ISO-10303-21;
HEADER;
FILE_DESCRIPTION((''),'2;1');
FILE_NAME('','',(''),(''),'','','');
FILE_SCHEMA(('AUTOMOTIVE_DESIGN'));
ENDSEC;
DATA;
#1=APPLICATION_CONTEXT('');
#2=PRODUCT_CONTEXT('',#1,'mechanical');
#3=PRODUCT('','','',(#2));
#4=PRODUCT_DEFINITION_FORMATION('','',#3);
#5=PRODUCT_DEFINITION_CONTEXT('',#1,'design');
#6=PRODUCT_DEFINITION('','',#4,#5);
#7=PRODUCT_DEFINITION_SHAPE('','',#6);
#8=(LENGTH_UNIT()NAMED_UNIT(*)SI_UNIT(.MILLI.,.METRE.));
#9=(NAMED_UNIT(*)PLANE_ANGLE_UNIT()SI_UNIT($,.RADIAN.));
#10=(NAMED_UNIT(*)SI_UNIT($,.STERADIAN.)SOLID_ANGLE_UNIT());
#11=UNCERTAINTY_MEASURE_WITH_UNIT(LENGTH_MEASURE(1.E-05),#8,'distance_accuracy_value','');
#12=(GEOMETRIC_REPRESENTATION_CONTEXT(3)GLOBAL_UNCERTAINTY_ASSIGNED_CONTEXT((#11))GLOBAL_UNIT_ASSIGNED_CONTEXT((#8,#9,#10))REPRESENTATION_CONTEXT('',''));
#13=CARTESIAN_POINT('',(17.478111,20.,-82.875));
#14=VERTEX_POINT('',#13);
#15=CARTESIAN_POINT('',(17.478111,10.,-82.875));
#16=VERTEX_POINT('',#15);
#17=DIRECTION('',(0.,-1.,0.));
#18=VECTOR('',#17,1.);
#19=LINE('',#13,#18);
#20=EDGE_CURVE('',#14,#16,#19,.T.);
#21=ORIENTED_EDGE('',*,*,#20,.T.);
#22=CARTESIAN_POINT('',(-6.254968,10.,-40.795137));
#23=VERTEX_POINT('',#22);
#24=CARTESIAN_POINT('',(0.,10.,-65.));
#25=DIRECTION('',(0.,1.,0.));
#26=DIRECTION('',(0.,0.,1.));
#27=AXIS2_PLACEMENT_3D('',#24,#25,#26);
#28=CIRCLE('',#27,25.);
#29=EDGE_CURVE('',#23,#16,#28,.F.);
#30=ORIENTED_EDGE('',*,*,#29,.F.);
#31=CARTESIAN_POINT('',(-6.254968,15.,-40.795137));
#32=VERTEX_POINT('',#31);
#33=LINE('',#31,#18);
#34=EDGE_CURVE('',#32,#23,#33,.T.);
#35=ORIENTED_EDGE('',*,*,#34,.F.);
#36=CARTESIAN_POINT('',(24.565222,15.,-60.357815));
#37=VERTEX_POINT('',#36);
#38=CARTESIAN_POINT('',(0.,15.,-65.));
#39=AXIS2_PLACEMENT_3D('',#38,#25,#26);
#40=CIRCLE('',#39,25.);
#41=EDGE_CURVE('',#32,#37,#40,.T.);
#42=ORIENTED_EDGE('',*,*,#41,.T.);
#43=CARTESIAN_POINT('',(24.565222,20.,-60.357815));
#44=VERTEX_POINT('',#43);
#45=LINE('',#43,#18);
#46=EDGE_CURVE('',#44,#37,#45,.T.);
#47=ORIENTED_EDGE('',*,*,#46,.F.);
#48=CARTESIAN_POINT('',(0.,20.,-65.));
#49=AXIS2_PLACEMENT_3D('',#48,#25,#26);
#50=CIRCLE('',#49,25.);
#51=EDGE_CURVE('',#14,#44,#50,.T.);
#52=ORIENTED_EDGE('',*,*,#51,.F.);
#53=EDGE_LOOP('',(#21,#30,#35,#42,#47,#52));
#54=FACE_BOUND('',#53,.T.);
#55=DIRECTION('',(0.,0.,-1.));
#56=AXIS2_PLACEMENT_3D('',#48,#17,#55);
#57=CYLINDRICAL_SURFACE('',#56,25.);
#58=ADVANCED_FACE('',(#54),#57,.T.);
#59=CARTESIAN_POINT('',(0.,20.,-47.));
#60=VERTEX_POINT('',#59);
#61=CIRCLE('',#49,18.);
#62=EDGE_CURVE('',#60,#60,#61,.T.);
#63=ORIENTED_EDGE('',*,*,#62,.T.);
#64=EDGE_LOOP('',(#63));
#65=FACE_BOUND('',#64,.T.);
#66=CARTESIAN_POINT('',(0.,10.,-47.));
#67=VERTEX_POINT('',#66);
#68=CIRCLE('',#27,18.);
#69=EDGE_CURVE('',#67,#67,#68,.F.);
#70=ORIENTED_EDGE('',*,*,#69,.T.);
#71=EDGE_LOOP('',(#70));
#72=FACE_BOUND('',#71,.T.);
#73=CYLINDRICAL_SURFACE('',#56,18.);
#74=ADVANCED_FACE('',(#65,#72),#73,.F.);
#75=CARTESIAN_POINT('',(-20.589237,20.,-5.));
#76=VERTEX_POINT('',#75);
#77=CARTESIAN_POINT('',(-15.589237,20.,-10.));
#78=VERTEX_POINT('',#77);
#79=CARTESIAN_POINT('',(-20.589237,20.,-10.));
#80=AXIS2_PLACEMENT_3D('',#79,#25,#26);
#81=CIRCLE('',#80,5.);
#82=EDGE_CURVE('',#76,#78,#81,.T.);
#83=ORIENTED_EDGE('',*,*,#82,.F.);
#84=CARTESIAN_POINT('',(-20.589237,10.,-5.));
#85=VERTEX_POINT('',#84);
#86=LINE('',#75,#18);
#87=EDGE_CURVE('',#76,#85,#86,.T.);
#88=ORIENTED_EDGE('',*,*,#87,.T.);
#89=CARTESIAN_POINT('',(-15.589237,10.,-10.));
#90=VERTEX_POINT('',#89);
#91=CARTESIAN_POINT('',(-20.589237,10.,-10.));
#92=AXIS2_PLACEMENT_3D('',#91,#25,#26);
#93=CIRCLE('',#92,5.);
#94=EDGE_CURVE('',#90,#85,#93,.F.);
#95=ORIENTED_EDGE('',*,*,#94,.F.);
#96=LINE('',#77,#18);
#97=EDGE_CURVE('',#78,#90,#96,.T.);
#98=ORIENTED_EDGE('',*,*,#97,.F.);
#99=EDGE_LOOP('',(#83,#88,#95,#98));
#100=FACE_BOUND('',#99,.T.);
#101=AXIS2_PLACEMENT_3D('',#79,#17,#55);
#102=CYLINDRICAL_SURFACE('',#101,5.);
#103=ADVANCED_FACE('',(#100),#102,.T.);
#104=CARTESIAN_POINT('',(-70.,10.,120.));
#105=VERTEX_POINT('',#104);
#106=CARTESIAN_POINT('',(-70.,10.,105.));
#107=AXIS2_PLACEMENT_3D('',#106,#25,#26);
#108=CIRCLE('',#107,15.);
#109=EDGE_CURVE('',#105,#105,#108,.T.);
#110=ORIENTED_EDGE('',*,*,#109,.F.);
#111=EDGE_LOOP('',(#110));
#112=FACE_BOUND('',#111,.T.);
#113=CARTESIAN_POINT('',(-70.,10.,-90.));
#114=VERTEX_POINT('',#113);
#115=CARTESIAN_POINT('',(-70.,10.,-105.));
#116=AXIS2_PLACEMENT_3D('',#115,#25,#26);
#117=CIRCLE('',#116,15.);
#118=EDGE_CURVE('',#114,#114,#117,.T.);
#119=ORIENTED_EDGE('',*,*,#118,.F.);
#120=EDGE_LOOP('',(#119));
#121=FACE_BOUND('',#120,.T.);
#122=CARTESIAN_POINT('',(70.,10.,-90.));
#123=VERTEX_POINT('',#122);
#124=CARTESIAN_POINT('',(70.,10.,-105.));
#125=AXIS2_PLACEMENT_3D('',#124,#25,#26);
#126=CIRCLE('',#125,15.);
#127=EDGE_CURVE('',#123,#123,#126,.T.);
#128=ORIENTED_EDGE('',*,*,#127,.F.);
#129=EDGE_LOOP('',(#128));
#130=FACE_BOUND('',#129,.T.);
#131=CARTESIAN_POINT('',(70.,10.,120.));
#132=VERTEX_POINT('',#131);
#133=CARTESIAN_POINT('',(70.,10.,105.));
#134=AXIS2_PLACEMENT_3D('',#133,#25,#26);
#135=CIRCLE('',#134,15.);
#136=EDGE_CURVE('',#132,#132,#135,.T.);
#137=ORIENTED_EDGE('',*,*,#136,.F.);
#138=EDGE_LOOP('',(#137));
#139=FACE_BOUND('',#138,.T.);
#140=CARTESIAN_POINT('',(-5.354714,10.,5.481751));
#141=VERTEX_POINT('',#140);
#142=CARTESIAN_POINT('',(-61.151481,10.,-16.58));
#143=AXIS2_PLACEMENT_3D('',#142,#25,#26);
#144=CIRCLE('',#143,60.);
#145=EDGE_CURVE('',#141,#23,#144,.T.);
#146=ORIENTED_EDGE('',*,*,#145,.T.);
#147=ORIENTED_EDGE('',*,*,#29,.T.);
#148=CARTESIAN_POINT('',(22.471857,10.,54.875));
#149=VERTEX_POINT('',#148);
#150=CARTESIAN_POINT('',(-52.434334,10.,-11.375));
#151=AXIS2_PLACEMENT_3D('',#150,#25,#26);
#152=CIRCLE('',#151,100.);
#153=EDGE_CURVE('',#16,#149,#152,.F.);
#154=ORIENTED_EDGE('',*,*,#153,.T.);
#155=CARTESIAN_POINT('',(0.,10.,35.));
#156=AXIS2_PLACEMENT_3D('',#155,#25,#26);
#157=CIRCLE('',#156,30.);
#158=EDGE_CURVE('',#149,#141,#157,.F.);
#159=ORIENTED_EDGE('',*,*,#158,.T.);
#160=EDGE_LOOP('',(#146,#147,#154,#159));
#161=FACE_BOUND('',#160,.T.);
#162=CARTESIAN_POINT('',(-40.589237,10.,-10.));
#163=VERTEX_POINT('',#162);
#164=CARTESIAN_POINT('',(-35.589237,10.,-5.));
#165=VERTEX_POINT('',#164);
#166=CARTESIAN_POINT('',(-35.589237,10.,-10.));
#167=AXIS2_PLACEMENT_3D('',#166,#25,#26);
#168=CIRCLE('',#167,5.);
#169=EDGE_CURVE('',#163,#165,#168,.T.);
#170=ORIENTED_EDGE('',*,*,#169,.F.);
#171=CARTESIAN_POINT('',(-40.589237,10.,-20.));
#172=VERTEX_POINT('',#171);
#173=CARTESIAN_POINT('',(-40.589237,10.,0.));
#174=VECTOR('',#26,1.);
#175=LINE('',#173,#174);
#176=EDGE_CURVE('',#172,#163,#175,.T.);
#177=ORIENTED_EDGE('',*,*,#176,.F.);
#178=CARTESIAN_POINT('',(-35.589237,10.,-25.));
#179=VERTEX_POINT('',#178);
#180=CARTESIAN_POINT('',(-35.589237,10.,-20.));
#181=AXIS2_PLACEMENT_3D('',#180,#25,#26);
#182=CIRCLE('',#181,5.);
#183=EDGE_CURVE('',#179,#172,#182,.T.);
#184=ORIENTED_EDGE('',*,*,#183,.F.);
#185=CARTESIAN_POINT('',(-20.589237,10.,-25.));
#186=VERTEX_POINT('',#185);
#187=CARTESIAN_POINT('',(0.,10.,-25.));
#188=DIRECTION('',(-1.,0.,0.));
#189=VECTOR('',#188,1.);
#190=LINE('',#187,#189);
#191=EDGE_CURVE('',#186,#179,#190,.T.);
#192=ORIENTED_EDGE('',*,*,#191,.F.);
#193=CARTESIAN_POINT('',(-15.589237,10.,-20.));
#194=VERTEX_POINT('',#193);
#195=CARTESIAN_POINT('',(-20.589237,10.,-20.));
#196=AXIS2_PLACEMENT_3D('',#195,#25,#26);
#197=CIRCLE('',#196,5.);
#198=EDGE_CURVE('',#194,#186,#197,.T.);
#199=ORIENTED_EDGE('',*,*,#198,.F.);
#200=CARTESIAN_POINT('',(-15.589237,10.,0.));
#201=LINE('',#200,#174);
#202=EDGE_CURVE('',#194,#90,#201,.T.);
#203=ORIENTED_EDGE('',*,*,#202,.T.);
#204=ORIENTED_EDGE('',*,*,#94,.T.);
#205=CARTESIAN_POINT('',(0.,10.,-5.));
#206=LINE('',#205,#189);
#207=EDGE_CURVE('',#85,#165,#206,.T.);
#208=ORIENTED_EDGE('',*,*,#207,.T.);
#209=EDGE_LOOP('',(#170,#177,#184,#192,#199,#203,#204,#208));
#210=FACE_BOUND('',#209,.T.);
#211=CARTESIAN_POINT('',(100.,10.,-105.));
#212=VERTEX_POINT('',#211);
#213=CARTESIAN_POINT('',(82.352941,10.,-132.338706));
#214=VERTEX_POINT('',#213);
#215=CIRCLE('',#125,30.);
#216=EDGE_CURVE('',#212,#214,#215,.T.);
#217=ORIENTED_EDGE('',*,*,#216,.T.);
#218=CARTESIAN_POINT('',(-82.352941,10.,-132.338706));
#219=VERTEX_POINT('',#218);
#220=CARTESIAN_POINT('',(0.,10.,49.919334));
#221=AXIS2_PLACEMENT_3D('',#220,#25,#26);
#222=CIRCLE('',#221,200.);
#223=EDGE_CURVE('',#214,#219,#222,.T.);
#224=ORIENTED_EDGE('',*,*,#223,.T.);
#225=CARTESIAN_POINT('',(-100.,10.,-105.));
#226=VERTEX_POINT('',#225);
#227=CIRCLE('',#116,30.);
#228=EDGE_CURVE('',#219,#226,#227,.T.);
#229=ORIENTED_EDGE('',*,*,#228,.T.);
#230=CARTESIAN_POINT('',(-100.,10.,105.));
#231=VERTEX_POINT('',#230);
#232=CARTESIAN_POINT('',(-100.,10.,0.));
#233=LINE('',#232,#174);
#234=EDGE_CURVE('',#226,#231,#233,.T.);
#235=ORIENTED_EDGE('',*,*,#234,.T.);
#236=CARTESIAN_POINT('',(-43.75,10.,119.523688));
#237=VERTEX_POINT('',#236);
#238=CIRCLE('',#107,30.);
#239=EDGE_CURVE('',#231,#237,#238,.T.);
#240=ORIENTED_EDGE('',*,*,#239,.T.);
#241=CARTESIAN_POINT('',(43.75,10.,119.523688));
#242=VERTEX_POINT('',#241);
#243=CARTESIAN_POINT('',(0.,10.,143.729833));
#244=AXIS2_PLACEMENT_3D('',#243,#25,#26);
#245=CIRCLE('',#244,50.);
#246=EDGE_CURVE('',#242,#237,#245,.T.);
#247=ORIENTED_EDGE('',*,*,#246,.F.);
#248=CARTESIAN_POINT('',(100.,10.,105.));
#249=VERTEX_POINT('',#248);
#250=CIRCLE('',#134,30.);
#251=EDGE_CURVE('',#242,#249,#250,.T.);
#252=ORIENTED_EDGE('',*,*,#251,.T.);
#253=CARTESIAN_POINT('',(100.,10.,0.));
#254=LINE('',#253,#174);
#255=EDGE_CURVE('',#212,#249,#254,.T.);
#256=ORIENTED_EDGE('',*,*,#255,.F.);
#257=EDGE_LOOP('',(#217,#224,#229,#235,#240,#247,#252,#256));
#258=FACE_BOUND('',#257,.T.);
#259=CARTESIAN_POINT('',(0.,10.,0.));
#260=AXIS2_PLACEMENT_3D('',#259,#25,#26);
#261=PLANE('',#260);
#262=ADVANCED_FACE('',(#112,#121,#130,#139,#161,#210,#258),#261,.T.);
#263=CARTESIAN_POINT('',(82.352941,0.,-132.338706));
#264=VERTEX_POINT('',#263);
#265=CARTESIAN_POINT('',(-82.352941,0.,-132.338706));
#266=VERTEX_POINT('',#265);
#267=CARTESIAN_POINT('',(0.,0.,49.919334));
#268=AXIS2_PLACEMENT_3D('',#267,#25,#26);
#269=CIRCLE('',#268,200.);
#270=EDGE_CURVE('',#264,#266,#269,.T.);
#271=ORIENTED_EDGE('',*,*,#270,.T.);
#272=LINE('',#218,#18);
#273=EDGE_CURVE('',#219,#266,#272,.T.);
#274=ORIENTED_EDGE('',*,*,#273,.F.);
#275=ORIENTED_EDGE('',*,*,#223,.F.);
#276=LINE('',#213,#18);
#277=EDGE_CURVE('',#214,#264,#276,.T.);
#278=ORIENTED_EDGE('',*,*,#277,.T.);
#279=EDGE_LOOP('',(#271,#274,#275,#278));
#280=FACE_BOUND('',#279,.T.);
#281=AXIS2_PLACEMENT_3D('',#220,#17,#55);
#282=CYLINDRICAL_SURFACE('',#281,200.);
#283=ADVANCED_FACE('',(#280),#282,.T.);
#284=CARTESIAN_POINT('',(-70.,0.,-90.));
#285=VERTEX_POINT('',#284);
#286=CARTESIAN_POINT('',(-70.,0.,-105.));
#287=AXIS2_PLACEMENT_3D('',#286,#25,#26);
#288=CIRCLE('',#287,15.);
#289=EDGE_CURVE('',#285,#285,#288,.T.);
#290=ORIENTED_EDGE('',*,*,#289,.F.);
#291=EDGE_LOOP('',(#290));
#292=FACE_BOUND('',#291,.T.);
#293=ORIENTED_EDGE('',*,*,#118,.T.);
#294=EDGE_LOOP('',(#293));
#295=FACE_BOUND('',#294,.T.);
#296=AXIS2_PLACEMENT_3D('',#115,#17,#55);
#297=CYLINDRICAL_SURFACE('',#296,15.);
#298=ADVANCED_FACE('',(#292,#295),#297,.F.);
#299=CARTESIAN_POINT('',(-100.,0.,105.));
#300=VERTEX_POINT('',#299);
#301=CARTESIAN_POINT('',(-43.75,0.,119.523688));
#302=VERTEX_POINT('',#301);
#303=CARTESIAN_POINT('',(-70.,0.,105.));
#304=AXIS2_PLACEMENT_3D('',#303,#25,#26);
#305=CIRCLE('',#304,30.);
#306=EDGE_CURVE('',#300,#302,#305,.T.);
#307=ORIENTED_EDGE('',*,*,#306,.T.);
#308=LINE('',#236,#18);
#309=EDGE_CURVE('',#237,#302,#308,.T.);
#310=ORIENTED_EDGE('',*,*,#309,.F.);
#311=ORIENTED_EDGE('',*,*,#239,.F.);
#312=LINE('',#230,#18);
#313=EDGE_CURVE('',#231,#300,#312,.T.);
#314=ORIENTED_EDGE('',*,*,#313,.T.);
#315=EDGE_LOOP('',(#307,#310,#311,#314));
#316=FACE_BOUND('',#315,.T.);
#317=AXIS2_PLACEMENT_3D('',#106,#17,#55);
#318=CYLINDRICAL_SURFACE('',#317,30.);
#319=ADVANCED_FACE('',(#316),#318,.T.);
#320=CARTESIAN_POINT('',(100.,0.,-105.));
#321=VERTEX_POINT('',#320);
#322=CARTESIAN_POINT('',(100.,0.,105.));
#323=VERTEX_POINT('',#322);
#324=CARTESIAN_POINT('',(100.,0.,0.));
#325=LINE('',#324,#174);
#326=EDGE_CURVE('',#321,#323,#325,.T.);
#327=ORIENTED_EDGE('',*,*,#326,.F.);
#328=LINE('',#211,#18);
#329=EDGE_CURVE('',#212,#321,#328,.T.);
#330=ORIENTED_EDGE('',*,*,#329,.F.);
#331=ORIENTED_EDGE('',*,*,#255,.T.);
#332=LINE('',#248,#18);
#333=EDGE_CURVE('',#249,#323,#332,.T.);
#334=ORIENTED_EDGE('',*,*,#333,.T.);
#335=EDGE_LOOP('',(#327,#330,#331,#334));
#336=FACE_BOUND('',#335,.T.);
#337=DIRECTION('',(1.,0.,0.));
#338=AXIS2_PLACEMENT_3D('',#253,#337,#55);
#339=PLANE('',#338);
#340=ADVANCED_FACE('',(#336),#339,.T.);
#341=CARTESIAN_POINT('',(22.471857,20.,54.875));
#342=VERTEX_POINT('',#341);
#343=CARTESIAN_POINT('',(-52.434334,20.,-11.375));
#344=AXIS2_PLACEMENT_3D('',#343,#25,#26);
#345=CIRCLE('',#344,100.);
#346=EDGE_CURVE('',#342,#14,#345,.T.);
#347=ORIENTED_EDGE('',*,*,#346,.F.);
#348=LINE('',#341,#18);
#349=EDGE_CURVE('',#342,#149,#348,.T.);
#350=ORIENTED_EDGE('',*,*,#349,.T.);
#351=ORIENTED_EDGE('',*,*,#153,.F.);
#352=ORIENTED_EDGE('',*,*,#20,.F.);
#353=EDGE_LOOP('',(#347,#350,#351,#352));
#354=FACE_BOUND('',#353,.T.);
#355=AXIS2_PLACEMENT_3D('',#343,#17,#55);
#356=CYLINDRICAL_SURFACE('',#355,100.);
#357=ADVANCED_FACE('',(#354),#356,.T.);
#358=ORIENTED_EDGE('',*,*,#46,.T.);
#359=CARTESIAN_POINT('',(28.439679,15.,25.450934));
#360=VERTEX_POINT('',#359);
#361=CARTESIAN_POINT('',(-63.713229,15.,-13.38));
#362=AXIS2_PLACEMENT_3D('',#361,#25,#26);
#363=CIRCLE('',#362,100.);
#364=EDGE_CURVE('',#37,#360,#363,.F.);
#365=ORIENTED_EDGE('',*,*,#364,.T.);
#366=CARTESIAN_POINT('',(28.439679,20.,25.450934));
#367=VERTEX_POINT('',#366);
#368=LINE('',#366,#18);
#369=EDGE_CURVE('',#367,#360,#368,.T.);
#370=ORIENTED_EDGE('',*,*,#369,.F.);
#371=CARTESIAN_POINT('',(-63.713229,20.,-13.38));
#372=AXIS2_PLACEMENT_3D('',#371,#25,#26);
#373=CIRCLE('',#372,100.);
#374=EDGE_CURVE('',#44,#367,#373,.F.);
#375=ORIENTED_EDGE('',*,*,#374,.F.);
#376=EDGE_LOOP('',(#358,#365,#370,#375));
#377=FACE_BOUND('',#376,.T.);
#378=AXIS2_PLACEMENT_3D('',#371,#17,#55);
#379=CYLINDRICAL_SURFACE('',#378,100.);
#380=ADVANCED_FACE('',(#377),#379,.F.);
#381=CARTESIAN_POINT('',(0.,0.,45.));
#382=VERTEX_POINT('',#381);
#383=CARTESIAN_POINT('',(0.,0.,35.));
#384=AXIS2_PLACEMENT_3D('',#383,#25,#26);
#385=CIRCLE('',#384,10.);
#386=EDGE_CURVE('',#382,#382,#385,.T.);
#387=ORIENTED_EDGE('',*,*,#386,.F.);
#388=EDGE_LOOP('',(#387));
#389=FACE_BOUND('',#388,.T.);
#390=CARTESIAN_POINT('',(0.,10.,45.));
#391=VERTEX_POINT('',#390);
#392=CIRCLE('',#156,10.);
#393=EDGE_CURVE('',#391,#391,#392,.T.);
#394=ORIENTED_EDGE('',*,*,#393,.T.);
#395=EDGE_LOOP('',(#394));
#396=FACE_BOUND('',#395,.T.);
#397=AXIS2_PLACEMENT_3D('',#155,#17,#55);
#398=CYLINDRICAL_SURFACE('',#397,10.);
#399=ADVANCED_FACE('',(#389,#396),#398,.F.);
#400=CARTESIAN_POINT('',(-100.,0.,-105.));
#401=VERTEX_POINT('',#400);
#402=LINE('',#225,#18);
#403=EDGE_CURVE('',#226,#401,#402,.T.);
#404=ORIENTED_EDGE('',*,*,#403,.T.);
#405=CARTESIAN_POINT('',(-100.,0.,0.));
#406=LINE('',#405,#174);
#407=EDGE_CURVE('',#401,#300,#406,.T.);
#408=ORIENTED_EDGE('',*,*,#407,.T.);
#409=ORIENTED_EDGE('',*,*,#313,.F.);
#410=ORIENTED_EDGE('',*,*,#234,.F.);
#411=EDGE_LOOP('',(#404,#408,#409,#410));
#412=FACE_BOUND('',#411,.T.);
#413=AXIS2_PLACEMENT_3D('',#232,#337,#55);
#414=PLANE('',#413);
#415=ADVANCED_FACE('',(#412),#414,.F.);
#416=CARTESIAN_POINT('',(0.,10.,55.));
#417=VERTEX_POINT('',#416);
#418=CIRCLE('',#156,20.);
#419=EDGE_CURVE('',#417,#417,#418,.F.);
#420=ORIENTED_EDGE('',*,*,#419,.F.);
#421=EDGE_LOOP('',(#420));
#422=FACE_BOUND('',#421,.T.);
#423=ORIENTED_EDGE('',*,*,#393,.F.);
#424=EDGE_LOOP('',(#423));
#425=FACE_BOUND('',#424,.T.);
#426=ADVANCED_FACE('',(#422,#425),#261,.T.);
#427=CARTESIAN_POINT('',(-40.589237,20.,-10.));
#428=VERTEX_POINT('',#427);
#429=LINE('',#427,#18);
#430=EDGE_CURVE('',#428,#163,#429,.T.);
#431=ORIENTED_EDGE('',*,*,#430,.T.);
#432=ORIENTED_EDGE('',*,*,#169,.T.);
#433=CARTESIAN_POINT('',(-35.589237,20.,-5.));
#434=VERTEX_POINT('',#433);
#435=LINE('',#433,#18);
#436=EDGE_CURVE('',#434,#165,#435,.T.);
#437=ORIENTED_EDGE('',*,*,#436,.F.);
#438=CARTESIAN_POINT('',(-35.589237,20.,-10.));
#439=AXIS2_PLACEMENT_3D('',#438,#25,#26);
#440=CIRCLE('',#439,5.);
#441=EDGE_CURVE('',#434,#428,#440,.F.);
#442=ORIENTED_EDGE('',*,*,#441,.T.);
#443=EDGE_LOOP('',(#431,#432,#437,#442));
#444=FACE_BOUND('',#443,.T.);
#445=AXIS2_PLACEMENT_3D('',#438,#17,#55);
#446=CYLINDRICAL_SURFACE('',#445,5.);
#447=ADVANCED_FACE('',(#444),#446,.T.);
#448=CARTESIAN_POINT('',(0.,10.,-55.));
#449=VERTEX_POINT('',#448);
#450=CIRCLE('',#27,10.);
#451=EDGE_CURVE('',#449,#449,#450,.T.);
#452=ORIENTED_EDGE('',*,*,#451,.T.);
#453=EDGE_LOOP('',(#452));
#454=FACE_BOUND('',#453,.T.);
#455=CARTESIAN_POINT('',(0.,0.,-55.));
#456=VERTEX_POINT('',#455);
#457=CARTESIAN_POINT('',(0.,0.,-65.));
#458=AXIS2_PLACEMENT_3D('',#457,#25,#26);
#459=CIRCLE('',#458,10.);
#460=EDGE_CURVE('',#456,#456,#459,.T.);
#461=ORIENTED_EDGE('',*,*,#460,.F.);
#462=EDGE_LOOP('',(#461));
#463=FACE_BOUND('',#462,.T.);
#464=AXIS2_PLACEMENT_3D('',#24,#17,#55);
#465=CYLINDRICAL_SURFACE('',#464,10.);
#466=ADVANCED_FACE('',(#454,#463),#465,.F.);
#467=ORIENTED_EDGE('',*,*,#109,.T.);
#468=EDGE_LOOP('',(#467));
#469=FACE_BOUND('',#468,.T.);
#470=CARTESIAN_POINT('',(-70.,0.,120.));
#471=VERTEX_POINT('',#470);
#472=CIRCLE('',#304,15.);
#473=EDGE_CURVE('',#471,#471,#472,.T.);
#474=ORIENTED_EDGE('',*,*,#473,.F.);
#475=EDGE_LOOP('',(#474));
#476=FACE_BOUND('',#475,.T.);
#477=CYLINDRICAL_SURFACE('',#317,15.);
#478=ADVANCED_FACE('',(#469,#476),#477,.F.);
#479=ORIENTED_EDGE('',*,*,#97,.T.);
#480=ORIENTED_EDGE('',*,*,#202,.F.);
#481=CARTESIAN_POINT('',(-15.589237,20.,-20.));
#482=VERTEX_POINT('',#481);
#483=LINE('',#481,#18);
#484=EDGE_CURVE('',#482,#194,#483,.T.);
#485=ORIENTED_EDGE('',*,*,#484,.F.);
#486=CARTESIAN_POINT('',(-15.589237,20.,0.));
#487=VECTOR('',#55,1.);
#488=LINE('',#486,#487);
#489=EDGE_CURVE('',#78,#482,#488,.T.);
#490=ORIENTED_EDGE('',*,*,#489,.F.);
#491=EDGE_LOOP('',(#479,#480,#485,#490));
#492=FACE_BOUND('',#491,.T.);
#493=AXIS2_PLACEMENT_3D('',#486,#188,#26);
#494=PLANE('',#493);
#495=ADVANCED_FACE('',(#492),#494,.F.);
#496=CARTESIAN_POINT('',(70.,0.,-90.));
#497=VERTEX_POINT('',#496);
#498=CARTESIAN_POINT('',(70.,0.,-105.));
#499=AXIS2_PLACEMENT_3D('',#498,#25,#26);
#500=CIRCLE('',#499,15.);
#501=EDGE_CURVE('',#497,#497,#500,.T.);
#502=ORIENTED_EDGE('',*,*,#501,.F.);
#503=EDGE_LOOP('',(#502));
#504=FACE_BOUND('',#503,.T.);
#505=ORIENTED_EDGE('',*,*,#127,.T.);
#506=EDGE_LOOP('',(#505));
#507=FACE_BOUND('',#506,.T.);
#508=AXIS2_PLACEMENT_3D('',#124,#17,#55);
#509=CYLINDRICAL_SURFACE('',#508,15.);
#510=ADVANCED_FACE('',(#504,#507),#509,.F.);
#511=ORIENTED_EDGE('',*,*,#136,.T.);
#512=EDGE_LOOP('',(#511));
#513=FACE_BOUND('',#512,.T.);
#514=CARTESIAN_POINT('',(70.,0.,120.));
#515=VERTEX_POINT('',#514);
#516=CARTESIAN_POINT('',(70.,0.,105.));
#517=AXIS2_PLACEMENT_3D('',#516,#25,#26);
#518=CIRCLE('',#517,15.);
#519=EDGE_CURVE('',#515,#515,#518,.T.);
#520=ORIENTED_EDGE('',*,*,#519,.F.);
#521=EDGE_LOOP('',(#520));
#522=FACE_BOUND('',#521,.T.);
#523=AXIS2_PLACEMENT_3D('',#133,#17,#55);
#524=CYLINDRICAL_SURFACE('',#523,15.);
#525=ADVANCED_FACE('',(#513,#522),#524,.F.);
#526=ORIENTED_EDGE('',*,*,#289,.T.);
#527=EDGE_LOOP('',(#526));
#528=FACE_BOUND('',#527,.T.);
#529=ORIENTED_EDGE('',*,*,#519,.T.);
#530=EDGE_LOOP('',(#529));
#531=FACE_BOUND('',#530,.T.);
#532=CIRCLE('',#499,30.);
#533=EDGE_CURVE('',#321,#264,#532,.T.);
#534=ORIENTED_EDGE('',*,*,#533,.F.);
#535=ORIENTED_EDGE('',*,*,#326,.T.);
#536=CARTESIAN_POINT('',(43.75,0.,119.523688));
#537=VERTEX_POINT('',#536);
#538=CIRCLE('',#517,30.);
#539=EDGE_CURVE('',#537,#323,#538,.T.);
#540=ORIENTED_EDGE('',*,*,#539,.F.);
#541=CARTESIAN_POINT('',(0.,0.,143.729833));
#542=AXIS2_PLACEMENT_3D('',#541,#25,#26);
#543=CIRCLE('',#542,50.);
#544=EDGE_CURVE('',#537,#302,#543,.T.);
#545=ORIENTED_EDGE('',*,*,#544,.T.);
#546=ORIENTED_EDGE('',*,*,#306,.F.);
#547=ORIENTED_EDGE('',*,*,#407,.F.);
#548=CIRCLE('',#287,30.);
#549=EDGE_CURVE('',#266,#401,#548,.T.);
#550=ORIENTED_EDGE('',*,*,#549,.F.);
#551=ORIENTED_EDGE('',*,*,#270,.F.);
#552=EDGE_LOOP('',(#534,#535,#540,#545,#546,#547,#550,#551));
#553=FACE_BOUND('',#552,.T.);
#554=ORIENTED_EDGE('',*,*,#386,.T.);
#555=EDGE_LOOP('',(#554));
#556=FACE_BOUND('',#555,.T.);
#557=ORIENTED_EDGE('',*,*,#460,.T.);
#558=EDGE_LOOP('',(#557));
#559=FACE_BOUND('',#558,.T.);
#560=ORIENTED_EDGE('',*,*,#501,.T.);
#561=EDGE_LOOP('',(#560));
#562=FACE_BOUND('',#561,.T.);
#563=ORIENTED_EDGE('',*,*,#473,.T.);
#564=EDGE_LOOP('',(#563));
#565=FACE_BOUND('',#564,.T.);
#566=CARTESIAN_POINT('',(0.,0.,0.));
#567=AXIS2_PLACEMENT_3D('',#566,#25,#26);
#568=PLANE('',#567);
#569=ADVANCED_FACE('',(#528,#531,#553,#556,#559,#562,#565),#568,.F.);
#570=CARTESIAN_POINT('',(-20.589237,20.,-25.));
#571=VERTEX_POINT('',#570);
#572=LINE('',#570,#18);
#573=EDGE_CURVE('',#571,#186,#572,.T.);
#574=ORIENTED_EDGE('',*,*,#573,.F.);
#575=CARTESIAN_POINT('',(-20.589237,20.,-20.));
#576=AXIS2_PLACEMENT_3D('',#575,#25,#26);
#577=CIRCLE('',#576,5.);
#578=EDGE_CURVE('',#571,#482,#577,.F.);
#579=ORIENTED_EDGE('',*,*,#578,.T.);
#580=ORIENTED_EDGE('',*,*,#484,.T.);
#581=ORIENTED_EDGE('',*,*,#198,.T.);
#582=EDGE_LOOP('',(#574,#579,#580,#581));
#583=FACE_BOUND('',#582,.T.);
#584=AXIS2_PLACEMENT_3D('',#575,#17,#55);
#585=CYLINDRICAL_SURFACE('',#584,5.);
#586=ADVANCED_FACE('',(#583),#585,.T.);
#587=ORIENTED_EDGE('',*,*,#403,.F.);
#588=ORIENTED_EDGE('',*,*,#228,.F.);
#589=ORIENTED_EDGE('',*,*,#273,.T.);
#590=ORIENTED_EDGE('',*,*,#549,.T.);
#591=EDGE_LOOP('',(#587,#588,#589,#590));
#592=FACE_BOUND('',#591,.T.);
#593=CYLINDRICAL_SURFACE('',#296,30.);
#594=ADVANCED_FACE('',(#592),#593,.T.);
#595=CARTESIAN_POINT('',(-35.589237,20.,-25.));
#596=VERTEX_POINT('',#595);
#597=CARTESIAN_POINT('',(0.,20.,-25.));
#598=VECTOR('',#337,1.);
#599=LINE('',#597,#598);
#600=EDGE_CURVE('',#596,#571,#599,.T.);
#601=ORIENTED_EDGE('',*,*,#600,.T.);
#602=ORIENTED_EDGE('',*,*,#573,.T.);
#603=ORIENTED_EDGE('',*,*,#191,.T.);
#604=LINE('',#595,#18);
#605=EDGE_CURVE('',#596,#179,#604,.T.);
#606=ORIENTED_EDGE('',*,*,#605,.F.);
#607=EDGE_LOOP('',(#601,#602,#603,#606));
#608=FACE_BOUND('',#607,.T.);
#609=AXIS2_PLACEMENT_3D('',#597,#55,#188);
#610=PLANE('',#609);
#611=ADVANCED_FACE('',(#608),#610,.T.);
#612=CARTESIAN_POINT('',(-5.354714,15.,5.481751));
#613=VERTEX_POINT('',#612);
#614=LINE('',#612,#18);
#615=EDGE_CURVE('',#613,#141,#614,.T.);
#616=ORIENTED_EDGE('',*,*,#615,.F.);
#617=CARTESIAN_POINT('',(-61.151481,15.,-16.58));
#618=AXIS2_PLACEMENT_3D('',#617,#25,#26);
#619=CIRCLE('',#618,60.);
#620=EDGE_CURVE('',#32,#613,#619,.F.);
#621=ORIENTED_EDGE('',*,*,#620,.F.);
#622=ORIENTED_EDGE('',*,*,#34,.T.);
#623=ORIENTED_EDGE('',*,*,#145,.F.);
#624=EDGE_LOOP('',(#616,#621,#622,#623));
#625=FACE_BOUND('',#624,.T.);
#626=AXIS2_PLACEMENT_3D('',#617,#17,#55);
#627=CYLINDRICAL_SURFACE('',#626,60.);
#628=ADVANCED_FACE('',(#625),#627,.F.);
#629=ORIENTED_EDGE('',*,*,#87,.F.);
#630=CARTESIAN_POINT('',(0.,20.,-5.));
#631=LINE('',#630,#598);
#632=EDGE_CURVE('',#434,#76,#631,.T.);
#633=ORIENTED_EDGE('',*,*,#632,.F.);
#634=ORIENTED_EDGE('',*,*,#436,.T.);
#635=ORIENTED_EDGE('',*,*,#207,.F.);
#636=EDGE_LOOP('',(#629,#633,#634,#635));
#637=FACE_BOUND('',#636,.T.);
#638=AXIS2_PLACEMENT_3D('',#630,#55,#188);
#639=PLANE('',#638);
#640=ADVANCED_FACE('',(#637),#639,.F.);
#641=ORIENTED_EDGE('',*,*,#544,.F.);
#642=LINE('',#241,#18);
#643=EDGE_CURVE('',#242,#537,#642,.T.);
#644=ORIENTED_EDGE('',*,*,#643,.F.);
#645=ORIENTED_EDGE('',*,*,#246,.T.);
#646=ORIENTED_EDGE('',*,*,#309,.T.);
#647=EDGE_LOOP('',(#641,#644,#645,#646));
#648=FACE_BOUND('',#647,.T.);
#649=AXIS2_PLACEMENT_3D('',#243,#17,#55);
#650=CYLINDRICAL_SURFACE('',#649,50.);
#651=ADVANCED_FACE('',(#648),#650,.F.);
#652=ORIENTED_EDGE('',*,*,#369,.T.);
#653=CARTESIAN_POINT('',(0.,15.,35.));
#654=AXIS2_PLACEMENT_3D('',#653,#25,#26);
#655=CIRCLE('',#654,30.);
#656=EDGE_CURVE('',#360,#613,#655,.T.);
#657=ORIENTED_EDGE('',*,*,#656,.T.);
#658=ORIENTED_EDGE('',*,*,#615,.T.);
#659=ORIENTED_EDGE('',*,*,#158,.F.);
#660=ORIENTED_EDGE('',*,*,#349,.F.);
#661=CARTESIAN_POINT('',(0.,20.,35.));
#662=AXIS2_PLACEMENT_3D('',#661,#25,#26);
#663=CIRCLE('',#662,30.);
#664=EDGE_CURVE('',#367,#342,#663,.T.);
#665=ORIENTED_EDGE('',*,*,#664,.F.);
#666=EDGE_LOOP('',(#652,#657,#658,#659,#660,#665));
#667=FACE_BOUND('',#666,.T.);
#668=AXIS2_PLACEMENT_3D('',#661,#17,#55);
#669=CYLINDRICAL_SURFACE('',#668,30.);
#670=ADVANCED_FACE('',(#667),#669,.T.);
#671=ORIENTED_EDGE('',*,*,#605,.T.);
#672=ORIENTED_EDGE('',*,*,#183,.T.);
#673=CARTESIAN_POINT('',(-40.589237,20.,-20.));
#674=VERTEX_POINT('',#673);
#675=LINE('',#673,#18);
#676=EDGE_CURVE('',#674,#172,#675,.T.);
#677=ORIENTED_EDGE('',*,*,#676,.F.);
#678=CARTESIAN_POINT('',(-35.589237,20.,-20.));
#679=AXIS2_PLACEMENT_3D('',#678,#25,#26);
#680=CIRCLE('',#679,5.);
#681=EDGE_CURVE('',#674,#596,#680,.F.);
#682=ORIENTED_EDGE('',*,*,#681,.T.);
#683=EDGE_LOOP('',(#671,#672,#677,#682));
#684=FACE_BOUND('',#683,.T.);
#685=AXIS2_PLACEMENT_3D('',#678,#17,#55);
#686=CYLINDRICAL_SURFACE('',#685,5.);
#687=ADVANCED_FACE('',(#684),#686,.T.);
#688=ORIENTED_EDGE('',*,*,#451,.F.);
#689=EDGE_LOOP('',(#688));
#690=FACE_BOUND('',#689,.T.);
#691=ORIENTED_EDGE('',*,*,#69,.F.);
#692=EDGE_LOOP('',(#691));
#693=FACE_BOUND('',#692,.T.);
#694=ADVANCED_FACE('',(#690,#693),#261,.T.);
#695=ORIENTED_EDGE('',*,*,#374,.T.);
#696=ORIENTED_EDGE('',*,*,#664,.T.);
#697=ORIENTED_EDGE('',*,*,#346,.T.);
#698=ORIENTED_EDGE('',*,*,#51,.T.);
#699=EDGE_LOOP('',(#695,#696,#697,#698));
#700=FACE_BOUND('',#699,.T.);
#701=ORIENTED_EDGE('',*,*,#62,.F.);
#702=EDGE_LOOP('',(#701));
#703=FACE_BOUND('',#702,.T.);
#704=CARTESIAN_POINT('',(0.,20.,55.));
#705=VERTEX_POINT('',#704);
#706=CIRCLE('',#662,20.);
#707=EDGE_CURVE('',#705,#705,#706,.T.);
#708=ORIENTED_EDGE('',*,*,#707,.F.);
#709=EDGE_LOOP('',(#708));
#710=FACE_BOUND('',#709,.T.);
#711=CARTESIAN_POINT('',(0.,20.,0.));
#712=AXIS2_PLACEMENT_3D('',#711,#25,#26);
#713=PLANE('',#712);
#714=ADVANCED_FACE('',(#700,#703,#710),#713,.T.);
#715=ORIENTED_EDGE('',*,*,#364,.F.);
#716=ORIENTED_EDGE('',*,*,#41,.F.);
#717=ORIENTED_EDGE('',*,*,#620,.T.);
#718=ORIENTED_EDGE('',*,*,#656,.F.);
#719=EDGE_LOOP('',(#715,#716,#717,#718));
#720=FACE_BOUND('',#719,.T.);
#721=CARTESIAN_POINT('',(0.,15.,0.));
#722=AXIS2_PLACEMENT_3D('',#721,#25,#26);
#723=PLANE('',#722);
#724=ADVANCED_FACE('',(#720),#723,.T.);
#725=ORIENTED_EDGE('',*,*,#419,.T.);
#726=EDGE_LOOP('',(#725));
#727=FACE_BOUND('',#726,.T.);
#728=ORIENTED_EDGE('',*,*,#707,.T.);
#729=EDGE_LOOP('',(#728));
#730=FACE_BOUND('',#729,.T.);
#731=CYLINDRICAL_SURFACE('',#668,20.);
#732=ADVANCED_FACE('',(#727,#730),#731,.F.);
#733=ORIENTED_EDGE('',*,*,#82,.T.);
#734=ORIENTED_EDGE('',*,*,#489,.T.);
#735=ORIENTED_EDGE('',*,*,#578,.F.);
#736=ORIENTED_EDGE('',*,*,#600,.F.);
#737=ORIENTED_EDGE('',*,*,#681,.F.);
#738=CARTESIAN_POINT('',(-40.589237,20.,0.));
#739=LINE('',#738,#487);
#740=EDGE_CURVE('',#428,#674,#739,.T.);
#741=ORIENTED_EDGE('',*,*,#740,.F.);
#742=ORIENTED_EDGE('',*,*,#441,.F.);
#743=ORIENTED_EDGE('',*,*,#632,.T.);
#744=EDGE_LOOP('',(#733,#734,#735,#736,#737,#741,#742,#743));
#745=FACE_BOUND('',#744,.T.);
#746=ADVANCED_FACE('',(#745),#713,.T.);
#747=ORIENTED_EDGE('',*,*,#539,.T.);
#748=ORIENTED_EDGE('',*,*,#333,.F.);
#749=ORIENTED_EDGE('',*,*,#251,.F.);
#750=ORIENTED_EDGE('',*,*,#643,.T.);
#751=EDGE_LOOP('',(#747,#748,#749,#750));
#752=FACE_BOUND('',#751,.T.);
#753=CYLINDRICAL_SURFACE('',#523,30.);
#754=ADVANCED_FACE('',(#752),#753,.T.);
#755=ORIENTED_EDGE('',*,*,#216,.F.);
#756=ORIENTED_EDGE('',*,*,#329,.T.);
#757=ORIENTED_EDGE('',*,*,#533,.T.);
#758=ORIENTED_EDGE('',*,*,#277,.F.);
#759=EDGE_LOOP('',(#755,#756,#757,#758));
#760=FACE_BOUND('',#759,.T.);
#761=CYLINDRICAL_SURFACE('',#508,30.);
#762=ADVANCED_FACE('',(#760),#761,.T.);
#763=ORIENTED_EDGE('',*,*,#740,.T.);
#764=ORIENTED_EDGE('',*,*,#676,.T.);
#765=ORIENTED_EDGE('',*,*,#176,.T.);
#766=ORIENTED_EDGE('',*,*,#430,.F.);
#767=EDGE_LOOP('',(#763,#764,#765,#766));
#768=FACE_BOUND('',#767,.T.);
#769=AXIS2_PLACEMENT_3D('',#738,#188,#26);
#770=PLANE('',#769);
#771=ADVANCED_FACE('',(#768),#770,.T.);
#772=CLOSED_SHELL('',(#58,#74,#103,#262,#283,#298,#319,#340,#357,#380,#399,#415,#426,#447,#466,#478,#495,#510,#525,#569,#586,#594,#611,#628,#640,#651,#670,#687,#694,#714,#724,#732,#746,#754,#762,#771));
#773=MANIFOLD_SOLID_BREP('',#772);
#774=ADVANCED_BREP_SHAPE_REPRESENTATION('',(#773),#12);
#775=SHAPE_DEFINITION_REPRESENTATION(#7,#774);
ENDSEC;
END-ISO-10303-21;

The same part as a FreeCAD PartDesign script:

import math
import FreeCAD as App
import Part
import Sketcher

V = App.Vector

doc = App.newDocument("Part")
body = doc.addObject("PartDesign::Body", "Body")

sketch1 = doc.addObject("Sketcher::SketchObject", "Sketch")
body.addObject(sketch1)
sketch1.AttachmentSupport = (doc.XZ_Plane, [""])
sketch1.MapMode = "FlatFace"
sketch1.addGeometry(Part.ArcOfCircle(Part.Circle(V(70, -105, 0), V(0, 0, 1), 30), math.radians(-65.684261), math.radians(0)), False)
sketch1.addGeometry(Part.ArcOfCircle(Part.Circle(V(0, 49.919334, 0), V(0, 0, 1), 200), math.radians(-114.315739), math.radians(-65.684261)), False)
sketch1.addGeometry(Part.ArcOfCircle(Part.Circle(V(-70, -105, 0), V(0, 0, 1), 30), math.radians(180), math.radians(245.684261)), False)
sketch1.addGeometry(Part.LineSegment(V(-100, -105, 0), V(-100, 105, 0)), False)
sketch1.addGeometry(Part.ArcOfCircle(Part.Circle(V(-70, 105, 0), V(0, 0, 1), 30), math.radians(28.955024), math.radians(180)), False)
sketch1.addGeometry(Part.ArcOfCircle(Part.Circle(V(0, 143.729833, 0), V(0, 0, 1), 50), math.radians(-151.044976), math.radians(-129.23152)), False)
sketch1.addGeometry(Part.ArcOfCircle(Part.Circle(V(0, 143.729833, 0), V(0, 0, 1), 50), math.radians(-129.23152), math.radians(-50.76848)), False)
sketch1.addGeometry(Part.ArcOfCircle(Part.Circle(V(0, 143.729833, 0), V(0, 0, 1), 50), math.radians(-50.76848), math.radians(-28.955024)), False)
sketch1.addGeometry(Part.ArcOfCircle(Part.Circle(V(70, 105, 0), V(0, 0, 1), 30), math.radians(0), math.radians(151.044976)), False)
sketch1.addGeometry(Part.LineSegment(V(100, 105, 0), V(100, -105, 0)), False)
sketch1.addGeometry(Part.ArcOfCircle(Part.Circle(V(-70, 105, 0), V(0, 0, 1), 15), math.radians(-90), math.radians(0)), False)
sketch1.addGeometry(Part.ArcOfCircle(Part.Circle(V(-70, 105, 0), V(0, 0, 1), 15), math.radians(0), math.radians(270)), False)
sketch1.addGeometry(Part.ArcOfCircle(Part.Circle(V(70, 105, 0), V(0, 0, 1), 15), math.radians(180), math.radians(270)), False)
sketch1.addGeometry(Part.ArcOfCircle(Part.Circle(V(70, 105, 0), V(0, 0, 1), 15), math.radians(-90), math.radians(0)), False)
sketch1.addGeometry(Part.ArcOfCircle(Part.Circle(V(70, 105, 0), V(0, 0, 1), 15), math.radians(0), math.radians(180)), False)
sketch1.addGeometry(Part.Circle(V(0, 35, 0), V(0, 0, 1), 10), False)
sketch1.addGeometry(Part.ArcOfCircle(Part.Circle(V(-20.589237, -10, 0), V(0, 0, 1), 5), math.radians(0), math.radians(90)), False)
sketch1.addGeometry(Part.LineSegment(V(-20.589237, -5, 0), V(-35.589237, -5, 0)), False)
sketch1.addGeometry(Part.ArcOfCircle(Part.Circle(V(-35.589237, -10, 0), V(0, 0, 1), 5), math.radians(90), math.radians(180)), False)
sketch1.addGeometry(Part.LineSegment(V(-40.589237, -10, 0), V(-40.589237, -20, 0)), False)
sketch1.addGeometry(Part.ArcOfCircle(Part.Circle(V(-35.589237, -20, 0), V(0, 0, 1), 5), math.radians(180), math.radians(270)), False)
sketch1.addGeometry(Part.LineSegment(V(-35.589237, -25, 0), V(-20.589237, -25, 0)), False)
sketch1.addGeometry(Part.ArcOfCircle(Part.Circle(V(-20.589237, -20, 0), V(0, 0, 1), 5), math.radians(-90), math.radians(0)), False)
sketch1.addGeometry(Part.LineSegment(V(-15.589237, -20, 0), V(-15.589237, -10, 0)), False)
sketch1.addGeometry(Part.ArcOfCircle(Part.Circle(V(-70, -105, 0), V(0, 0, 1), 15), math.radians(0), math.radians(90)), False)
sketch1.addGeometry(Part.ArcOfCircle(Part.Circle(V(-70, -105, 0), V(0, 0, 1), 15), math.radians(90), math.radians(360)), False)
sketch1.addGeometry(Part.Circle(V(0, -65, 0), V(0, 0, 1), 10), False)
sketch1.addGeometry(Part.ArcOfCircle(Part.Circle(V(70, -105, 0), V(0, 0, 1), 15), math.radians(90), math.radians(180)), False)
sketch1.addGeometry(Part.ArcOfCircle(Part.Circle(V(70, -105, 0), V(0, 0, 1), 15), math.radians(180), math.radians(360)), False)
sketch1.addGeometry(Part.ArcOfCircle(Part.Circle(V(70, -105, 0), V(0, 0, 1), 15), math.radians(0), math.radians(90)), False)
sketch1.addConstraint(Sketcher.Constraint("Tangent", 0, 1, 1, 2))
sketch1.addConstraint(Sketcher.Constraint("Tangent", 1, 1, 2, 2))
sketch1.addConstraint(Sketcher.Constraint("Tangent", 2, 1, 3, 1))
sketch1.addConstraint(Sketcher.Constraint("Tangent", 3, 2, 4, 2))
sketch1.addConstraint(Sketcher.Constraint("Tangent", 4, 1, 5, 1))
sketch1.addConstraint(Sketcher.Constraint("Tangent", 5, 2, 6, 1))
sketch1.addConstraint(Sketcher.Constraint("Tangent", 6, 2, 7, 1))
sketch1.addConstraint(Sketcher.Constraint("Tangent", 7, 2, 8, 2))
sketch1.addConstraint(Sketcher.Constraint("Tangent", 8, 1, 9, 1))
sketch1.addConstraint(Sketcher.Constraint("Tangent", 9, 2, 0, 2))
sketch1.addConstraint(Sketcher.Constraint("Tangent", 10, 1, 11, 2))
sketch1.addConstraint(Sketcher.Constraint("Coincident", 11, 1, 10, 2))
sketch1.addConstraint(Sketcher.Constraint("Tangent", 12, 2, 13, 1))
sketch1.addConstraint(Sketcher.Constraint("Tangent", 13, 2, 14, 1))
sketch1.addConstraint(Sketcher.Constraint("Tangent", 14, 2, 12, 1))
sketch1.addConstraint(Sketcher.Constraint("Tangent", 16, 2, 17, 1))
sketch1.addConstraint(Sketcher.Constraint("Tangent", 17, 2, 18, 1))
sketch1.addConstraint(Sketcher.Constraint("Tangent", 18, 2, 19, 1))
sketch1.addConstraint(Sketcher.Constraint("Tangent", 19, 2, 20, 1))
sketch1.addConstraint(Sketcher.Constraint("Tangent", 20, 2, 21, 1))
sketch1.addConstraint(Sketcher.Constraint("Tangent", 21, 2, 22, 1))
sketch1.addConstraint(Sketcher.Constraint("Tangent", 22, 2, 23, 1))
sketch1.addConstraint(Sketcher.Constraint("Tangent", 23, 2, 16, 1))
sketch1.addConstraint(Sketcher.Constraint("Tangent", 24, 1, 25, 2))
sketch1.addConstraint(Sketcher.Constraint("Coincident", 25, 1, 24, 2))
sketch1.addConstraint(Sketcher.Constraint("Tangent", 27, 2, 28, 1))
sketch1.addConstraint(Sketcher.Constraint("Tangent", 28, 2, 29, 1))
sketch1.addConstraint(Sketcher.Constraint("Tangent", 29, 2, 27, 1))
sketch1.addConstraint(Sketcher.Constraint("Vertical", 3))
sketch1.addConstraint(Sketcher.Constraint("Vertical", 9))
sketch1.addConstraint(Sketcher.Constraint("Horizontal", 17))
sketch1.addConstraint(Sketcher.Constraint("Vertical", 19))
sketch1.addConstraint(Sketcher.Constraint("Horizontal", 21))
sketch1.addConstraint(Sketcher.Constraint("Vertical", 23))
sketch1.addConstraint(Sketcher.Constraint("Coincident", 7, 3, 5, 3))
sketch1.addConstraint(Sketcher.Constraint("Coincident", 10, 3, 4, 3))
sketch1.addConstraint(Sketcher.Constraint("Coincident", 12, 3, 8, 3))
sketch1.addConstraint(Sketcher.Constraint("Coincident", 24, 3, 2, 3))
sketch1.addConstraint(Sketcher.Constraint("Coincident", 27, 3, 0, 3))
sketch1.addConstraint(Sketcher.Constraint("Equal", 0, 2))
sketch1.addConstraint(Sketcher.Constraint("Equal", 2, 4))
sketch1.addConstraint(Sketcher.Constraint("Equal", 4, 8))
sketch1.addConstraint(Sketcher.Constraint("Equal", 11, 12))
sketch1.addConstraint(Sketcher.Constraint("Equal", 16, 18))
sketch1.addConstraint(Sketcher.Constraint("Equal", 18, 20))
sketch1.addConstraint(Sketcher.Constraint("Equal", 20, 22))
sketch1.addConstraint(Sketcher.Constraint("Equal", 14, 24))
sketch1.addConstraint(Sketcher.Constraint("Equal", 15, 26))
sketch1.addConstraint(Sketcher.Constraint("Equal", 25, 27))
sketch1.addConstraint(Sketcher.Constraint("Symmetric", 0, 3, 4, 3, -1, 1))
sketch1.addConstraint(Sketcher.Constraint("Symmetric", 12, 2, 25, 1, -1, 1))
sketch1.addConstraint(Sketcher.Constraint("Symmetric", 5, 2, 6, 2, -2))
sketch1.addConstraint(Sketcher.Constraint("PointOnObject", 15, 3, -2))
sketch1.addConstraint(Sketcher.Constraint("PointOnObject", 26, 3, -2))
sketch1.addConstraint(Sketcher.Constraint("Horizontal", 3, 2, 5, 2))
sketch1.addConstraint(Sketcher.Constraint("Horizontal", 8, 1, 11, 1))
sketch1.addConstraint(Sketcher.Constraint("Horizontal", 11, 1, 13, 2))
sketch1.addConstraint(Sketcher.Constraint("Horizontal", 13, 2, 14, 2))
sketch1.addConstraint(Sketcher.Constraint("Horizontal", 9, 2, 24, 1))
sketch1.addConstraint(Sketcher.Constraint("Horizontal", 24, 1, 27, 2))
sketch1.addConstraint(Sketcher.Constraint("Horizontal", 27, 2, 28, 2))
sketch1.addConstraint(Sketcher.Constraint("Vertical", 25, 3, 10, 1))
sketch1.addConstraint(Sketcher.Constraint("Vertical", 29, 3, 12, 2))
sketch1.addConstraint(Sketcher.Constraint("Vertical", 12, 2, 29, 2))
sketch1.addConstraint(Sketcher.Constraint("Diameter", 15, 20.0))
sketch1.addConstraint(Sketcher.Constraint("Radius", 0, 30.0))
sketch1.addConstraint(Sketcher.Constraint("Radius", 1, 200.0))
sketch1.addConstraint(Sketcher.Constraint("Radius", 5, 50.0))
sketch1.addConstraint(Sketcher.Constraint("Radius", 10, 15.0))
sketch1.addConstraint(Sketcher.Constraint("Radius", 16, 5.0))
sketch1.addConstraint(Sketcher.Constraint("DistanceX", 17, 2, 17, 1, 15.0))
sketch1.addConstraint(Sketcher.Constraint("DistanceY", 3, 1, 3, 2, 210.0))
sketch1.addConstraint(Sketcher.Constraint("DistanceY", 19, 2, 19, 1, 10.0))
sketch1.addConstraint(Sketcher.Constraint("DistanceX", -1, 1, 0, 3, 70.0))
sketch1.addConstraint(Sketcher.Constraint("DistanceY", -1, 1, 15, 3, 35.0))
sketch1.addConstraint(Sketcher.Constraint("DistanceY", 16, 3, -1, 1, 10.0))
sketch1.addConstraint(Sketcher.Constraint("DistanceY", 26, 3, -1, 1, 65.0))
sketch1.addConstraint(Sketcher.Constraint("DistanceX", 16, 3, -1, 1, 20.589237))
pad1 = doc.addObject("PartDesign::Pad", "Pad")
body.addObject(pad1)
pad1.Profile = sketch1
pad1.Length = 10
pad1.Reversed = True

sketch2 = doc.addObject("Sketcher::SketchObject", "Sketch001")
body.addObject(sketch2)
sketch2.AttachmentSupport = (doc.XZ_Plane, [""])
sketch2.MapMode = "FlatFace"
sketch2.addGeometry(Part.ArcOfCircle(Part.Circle(V(0, 35, 0), V(0, 0, 1), 30), math.radians(-100.281847), math.radians(-18.560279)), False)
sketch2.addGeometry(Part.ArcOfCircle(Part.Circle(V(0, 35, 0), V(0, 0, 1), 30), math.radians(138.509183), math.radians(259.718153)), False)
sketch2.addGeometry(Part.ArcOfCircle(Part.Circle(V(0, 35, 0), V(0, 0, 1), 30), math.radians(41.490817), math.radians(138.509183)), False)
sketch2.addGeometry(Part.ArcOfCircle(Part.Circle(V(-52.434334, -11.375, 0), V(0, 0, 1), 100), math.radians(-45.643199), math.radians(41.490817)), False)
sketch2.addGeometry(Part.ArcOfCircle(Part.Circle(V(0, -65, 0), V(0, 0, 1), 25), math.radians(-134.356801), math.radians(-45.643199)), False)
sketch2.addGeometry(Part.ArcOfCircle(Part.Circle(V(0, -65, 0), V(0, 0, 1), 25), math.radians(104.489272), math.radians(225.643199)), False)
sketch2.addGeometry(Part.ArcOfCircle(Part.Circle(V(0, -65, 0), V(0, 0, 1), 25), math.radians(10.701213), math.radians(104.489272)), False)
sketch2.addGeometry(Part.ArcOfCircle(Part.Circle(V(-63.713229, -13.38, 0), V(0, 0, 1), 100), math.radians(-28.019897), math.radians(22.849343)), False)
sketch2.addGeometry(Part.ArcOfCircle(Part.Circle(V(0, 35, 0), V(0, 0, 1), 20), math.radians(0), math.radians(37.210854)), False)
sketch2.addGeometry(Part.ArcOfCircle(Part.Circle(V(0, 35, 0), V(0, 0, 1), 20), math.radians(37.210854), math.radians(220.146934)), False)
sketch2.addGeometry(Part.ArcOfCircle(Part.Circle(V(0, 35, 0), V(0, 0, 1), 20), math.radians(-139.853066), math.radians(0)), False)
sketch2.addGeometry(Part.ArcOfCircle(Part.Circle(V(0, -65, 0), V(0, 0, 1), 18), math.radians(-39.014142), math.radians(0)), False)
sketch2.addGeometry(Part.ArcOfCircle(Part.Circle(V(0, -65, 0), V(0, 0, 1), 18), math.radians(0), math.radians(141.62767)), False)
sketch2.addGeometry(Part.ArcOfCircle(Part.Circle(V(0, -65, 0), V(0, 0, 1), 18), math.radians(141.62767), math.radians(320.985858)), False)
sketch2.addGeometry(Part.ArcOfCircle(Part.Circle(V(-35.589237, -20, 0), V(0, 0, 1), 5), math.radians(180), math.radians(270)), False)
sketch2.addGeometry(Part.LineSegment(V(-40.589237, -20, 0), V(-40.589237, -10, 0)), False)
sketch2.addGeometry(Part.ArcOfCircle(Part.Circle(V(-35.589237, -10, 0), V(0, 0, 1), 5), math.radians(90), math.radians(180)), False)
sketch2.addGeometry(Part.LineSegment(V(-35.589237, -5, 0), V(-20.589237, -5, 0)), False)
sketch2.addGeometry(Part.ArcOfCircle(Part.Circle(V(-20.589237, -10, 0), V(0, 0, 1), 5), math.radians(0), math.radians(90)), False)
sketch2.addGeometry(Part.LineSegment(V(-15.589237, -10, 0), V(-15.589237, -20, 0)), False)
sketch2.addGeometry(Part.ArcOfCircle(Part.Circle(V(-20.589237, -20, 0), V(0, 0, 1), 5), math.radians(-90), math.radians(0)), False)
sketch2.addGeometry(Part.LineSegment(V(-20.589237, -25, 0), V(-35.589237, -25, 0)), False)
sketch2.addConstraint(Sketcher.Constraint("Tangent", 0, 1, 1, 2))
sketch2.addConstraint(Sketcher.Constraint("Tangent", 1, 1, 2, 2))
sketch2.addConstraint(Sketcher.Constraint("Tangent", 2, 1, 3, 2))
sketch2.addConstraint(Sketcher.Constraint("Tangent", 3, 1, 4, 2))
sketch2.addConstraint(Sketcher.Constraint("Tangent", 4, 1, 5, 2))
sketch2.addConstraint(Sketcher.Constraint("Tangent", 5, 1, 6, 2))
sketch2.addConstraint(Sketcher.Constraint("Coincident", 6, 1, 7, 1))
sketch2.addConstraint(Sketcher.Constraint("Coincident", 7, 2, 0, 2))
sketch2.addConstraint(Sketcher.Constraint("Tangent", 8, 2, 9, 1))
sketch2.addConstraint(Sketcher.Constraint("Tangent", 9, 2, 10, 1))
sketch2.addConstraint(Sketcher.Constraint("Tangent", 10, 2, 8, 1))
sketch2.addConstraint(Sketcher.Constraint("Tangent", 11, 2, 12, 1))
sketch2.addConstraint(Sketcher.Constraint("Tangent", 12, 2, 13, 1))
sketch2.addConstraint(Sketcher.Constraint("Tangent", 13, 2, 11, 1))
sketch2.addConstraint(Sketcher.Constraint("Tangent", 14, 1, 15, 1))
sketch2.addConstraint(Sketcher.Constraint("Tangent", 15, 2, 16, 2))
sketch2.addConstraint(Sketcher.Constraint("Tangent", 16, 1, 17, 1))
sketch2.addConstraint(Sketcher.Constraint("Tangent", 17, 2, 18, 2))
sketch2.addConstraint(Sketcher.Constraint("Tangent", 18, 1, 19, 1))
sketch2.addConstraint(Sketcher.Constraint("Tangent", 19, 2, 20, 2))
sketch2.addConstraint(Sketcher.Constraint("Tangent", 20, 1, 21, 1))
sketch2.addConstraint(Sketcher.Constraint("Tangent", 21, 2, 14, 2))
sketch2.addConstraint(Sketcher.Constraint("Vertical", 15))
sketch2.addConstraint(Sketcher.Constraint("Horizontal", 17))
sketch2.addConstraint(Sketcher.Constraint("Vertical", 19))
sketch2.addConstraint(Sketcher.Constraint("Horizontal", 21))
sketch2.addConstraint(Sketcher.Constraint("Coincident", 2, 3, 0, 3))
sketch2.addConstraint(Sketcher.Constraint("Coincident", 6, 3, 4, 3))
sketch2.addConstraint(Sketcher.Constraint("Coincident", 8, 3, 0, 3))
sketch2.addConstraint(Sketcher.Constraint("Coincident", 11, 3, 4, 3))
sketch2.addConstraint(Sketcher.Constraint("Equal", 3, 7))
sketch2.addConstraint(Sketcher.Constraint("Equal", 14, 16))
sketch2.addConstraint(Sketcher.Constraint("Equal", 16, 18))
sketch2.addConstraint(Sketcher.Constraint("Equal", 18, 20))
sketch2.addConstraint(Sketcher.Constraint("Symmetric", 1, 1, 2, 1, -2))
sketch2.addConstraint(Sketcher.Constraint("Symmetric", 3, 1, 4, 1, -2))
sketch2.addConstraint(Sketcher.Constraint("Horizontal", 9, 3, 10, 2))
sketch2.addConstraint(Sketcher.Constraint("Horizontal", 13, 3, 11, 2))
sketch2.addConstraint(Sketcher.Constraint("Radius", 0, 30.0))
sketch2.addConstraint(Sketcher.Constraint("Radius", 3, 100.0))
sketch2.addConstraint(Sketcher.Constraint("Radius", 4, 25.0))
sketch2.addConstraint(Sketcher.Constraint("Radius", 8, 20.0))
sketch2.addConstraint(Sketcher.Constraint("Radius", 11, 18.0))
sketch2.addConstraint(Sketcher.Constraint("Radius", 14, 5.0))
sketch2.addConstraint(Sketcher.Constraint("DistanceX", 17, 1, 17, 2, 15.0))
sketch2.addConstraint(Sketcher.Constraint("DistanceY", 15, 1, 15, 2, 10.0))
sketch2.addConstraint(Sketcher.Constraint("DistanceY", -1, 1, 0, 3, 35.0))
sketch2.addConstraint(Sketcher.Constraint("DistanceY", 4, 3, -1, 1, 65.0))
sketch2.addConstraint(Sketcher.Constraint("DistanceY", 14, 3, -1, 1, 20.0))
sketch2.addConstraint(Sketcher.Constraint("DistanceY", 7, 3, -1, 1, 13.38))
sketch2.addConstraint(Sketcher.Constraint("DistanceY", 8, 2, 2, 1, 7.78))
sketch2.addConstraint(Sketcher.Constraint("DistanceY", -1, 1, 9, 2, 22.105))
sketch2.addConstraint(Sketcher.Constraint("DistanceX", 7, 3, -1, 1, 63.713229))
sketch2.addConstraint(Sketcher.Constraint("DistanceY", -1, 1, 0, 1, 5.481751))
sketch2.addConstraint(Sketcher.Constraint("DistanceX", 12, 2, -1, 1, 14.11188))
sketch2.addConstraint(Sketcher.Constraint("DistanceX", -1, 1, 13, 2, 13.985831))
sketch2.addConstraint(Sketcher.Constraint("DistanceX", 14, 3, -1, 1, 35.589237))
sketch2.addConstraint(Sketcher.Constraint("DistanceX", 5, 1, -1, 1, 6.254968))
pad2 = doc.addObject("PartDesign::Pad", "Pad001")
body.addObject(pad2)
pad2.Profile = sketch2
pad2.Length = 20
pad2.Reversed = True

sketch3 = doc.addObject("Sketcher::SketchObject", "Sketch002")
body.addObject(sketch3)
sketch3.AttachmentSupport = (doc.XZ_Plane, [""])
sketch3.MapMode = "FlatFace"
sketch3.addGeometry(Part.ArcOfCircle(Part.Circle(V(-61.151481, -16.58, 0), V(0, 0, 1), 60), math.radians(-23.802525), math.radians(21.573584)), False)
sketch3.addGeometry(Part.ArcOfCircle(Part.Circle(V(0, 35, 0), V(0, 0, 1), 30), math.radians(-100.281847), math.radians(-18.560279)), False)
sketch3.addGeometry(Part.ArcOfCircle(Part.Circle(V(-63.713229, -13.38, 0), V(0, 0, 1), 100), math.radians(-28.019897), math.radians(22.849343)), False)
sketch3.addGeometry(Part.ArcOfCircle(Part.Circle(V(0, -65, 0), V(0, 0, 1), 25), math.radians(10.701213), math.radians(104.489272)), False)
sketch3.addConstraint(Sketcher.Constraint("Coincident", 0, 2, 1, 1))
sketch3.addConstraint(Sketcher.Constraint("Coincident", 1, 2, 2, 2))
sketch3.addConstraint(Sketcher.Constraint("Coincident", 2, 1, 3, 1))
sketch3.addConstraint(Sketcher.Constraint("Coincident", 3, 2, 0, 1))
sketch3.addConstraint(Sketcher.Constraint("PointOnObject", 1, 3, -2))
sketch3.addConstraint(Sketcher.Constraint("PointOnObject", 3, 3, -2))
sketch3.addConstraint(Sketcher.Constraint("Radius", 0, 60.0))
sketch3.addConstraint(Sketcher.Constraint("Radius", 1, 30.0))
sketch3.addConstraint(Sketcher.Constraint("Radius", 2, 100.0))
sketch3.addConstraint(Sketcher.Constraint("Radius", 3, 25.0))
sketch3.addConstraint(Sketcher.Constraint("DistanceY", -1, 1, 1, 3, 35.0))
sketch3.addConstraint(Sketcher.Constraint("DistanceY", 3, 3, -1, 1, 65.0))
sketch3.addConstraint(Sketcher.Constraint("DistanceY", 0, 3, 2, 3, 3.2))
sketch3.addConstraint(Sketcher.Constraint("DistanceY", 0, 3, -1, 1, 16.58))
sketch3.addConstraint(Sketcher.Constraint("DistanceX", 0, 3, -1, 1, 61.151481))
sketch3.addConstraint(Sketcher.Constraint("DistanceX", 2, 3, -1, 1, 63.713229))
pad3 = doc.addObject("PartDesign::Pad", "Pad002")
body.addObject(pad3)
pad3.Profile = sketch3
pad3.Length = 15
pad3.Reversed = True

doc.recompute()
